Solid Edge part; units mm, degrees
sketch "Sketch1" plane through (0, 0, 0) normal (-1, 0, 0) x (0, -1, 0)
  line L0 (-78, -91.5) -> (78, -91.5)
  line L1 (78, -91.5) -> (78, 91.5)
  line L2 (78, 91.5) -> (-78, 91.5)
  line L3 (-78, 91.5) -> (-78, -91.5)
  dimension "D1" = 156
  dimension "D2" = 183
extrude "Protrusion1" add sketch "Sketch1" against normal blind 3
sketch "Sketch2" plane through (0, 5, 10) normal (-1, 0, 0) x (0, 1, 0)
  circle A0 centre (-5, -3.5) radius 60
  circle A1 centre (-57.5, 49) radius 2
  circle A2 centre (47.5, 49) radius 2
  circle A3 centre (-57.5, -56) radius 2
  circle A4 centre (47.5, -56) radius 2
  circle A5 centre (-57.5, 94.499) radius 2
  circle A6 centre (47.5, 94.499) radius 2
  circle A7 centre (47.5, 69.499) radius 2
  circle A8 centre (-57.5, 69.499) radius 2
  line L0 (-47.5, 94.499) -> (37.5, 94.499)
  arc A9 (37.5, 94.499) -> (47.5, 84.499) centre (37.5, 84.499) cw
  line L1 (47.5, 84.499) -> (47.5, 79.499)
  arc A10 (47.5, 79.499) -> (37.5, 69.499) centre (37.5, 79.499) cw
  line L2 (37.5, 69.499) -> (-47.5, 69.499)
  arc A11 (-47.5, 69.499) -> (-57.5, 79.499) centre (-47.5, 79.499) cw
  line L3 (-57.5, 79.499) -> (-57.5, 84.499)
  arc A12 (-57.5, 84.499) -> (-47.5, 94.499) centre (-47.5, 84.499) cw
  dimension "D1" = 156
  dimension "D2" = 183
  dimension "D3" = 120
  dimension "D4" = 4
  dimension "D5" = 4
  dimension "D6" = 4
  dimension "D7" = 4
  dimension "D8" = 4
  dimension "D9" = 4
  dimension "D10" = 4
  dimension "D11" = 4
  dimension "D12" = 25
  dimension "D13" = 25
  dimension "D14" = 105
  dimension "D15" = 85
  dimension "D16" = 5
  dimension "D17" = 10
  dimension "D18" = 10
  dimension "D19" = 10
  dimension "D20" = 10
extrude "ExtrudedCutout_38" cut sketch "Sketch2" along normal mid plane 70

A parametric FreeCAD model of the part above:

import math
import FreeCAD as App
import Part
import Sketcher

V = App.Vector

doc = App.newDocument("Part")
body = doc.addObject("PartDesign::Body", "Body")

sketch1 = body.newObject("Sketcher::SketchObject", "Sketch")
sketch1.AttachmentSupport = (doc.getObject("YZ_Plane"), [""])
sketch1.MapMode = "FlatFace"
sketch1.addGeometry([
    Part.LineSegment(V(78, 92, 0), V(78, -92, 0)),
    Part.LineSegment(V(78, -92, 0), V(-78, -92, 0)),
    Part.LineSegment(V(-78, -92, 0), V(-78, 92, 0)),
    Part.LineSegment(V(-78, 92, 0), V(78, 92, 0)),
], False)
sketch1.addConstraint([
    Sketcher.Constraint("Coincident", 0, 2, 1, 1),
    Sketcher.Constraint("Coincident", 1, 2, 2, 1),
    Sketcher.Constraint("Coincident", 2, 2, 3, 1),
    Sketcher.Constraint("Coincident", 3, 2, 0, 1),
    Sketcher.Constraint("Vertical", 0),
    Sketcher.Constraint("Horizontal", 1),
    Sketcher.Constraint("Vertical", 2),
    Sketcher.Constraint("Horizontal", 3),
    Sketcher.Constraint("Symmetric", 0, 2, 2, 2, -1, 1),
    Sketcher.Constraint("DistanceX", 1, 2, 1, 1, 156.0),
    Sketcher.Constraint("DistanceY", 0, 2, 0, 1, 183.0),
])
pad1 = body.newObject("PartDesign::Pad", "Pad")
pad1.Profile = sketch1
pad1.Length = 3

sketch2 = body.newObject("Sketcher::SketchObject", "Sketch001")
sketch2.AttachmentSupport = (doc.getObject("YZ_Plane"), [""])
sketch2.MapMode = "FlatFace"
sketch2.addGeometry([
    Part.Circle(V(0, 13.5, 0), V(0, 0, 1), 60),
    Part.Circle(V(-52.5, -39, 0), V(0, 0, 1), 2),
    Part.Circle(V(52.5, -39, 0), V(0, 0, 1), 2),
    Part.Circle(V(-52.5, 66, 0), V(0, 0, 1), 2),
    Part.Circle(V(52.5, 66, 0), V(0, 0, 1), 2),
    Part.Circle(V(-52.5, -84.5, 0), V(0, 0, 1), 2),
    Part.Circle(V(52.5, -84.5, 0), V(0, 0, 1), 2),
    Part.Circle(V(52.5, -59.5, 0), V(0, 0, 1), 2),
    Part.Circle(V(-52.5, -59.5, 0), V(0, 0, 1), 2),
    Part.LineSegment(V(42.5, -84.5, 0), V(-42.5, -84.5, 0)),
    Part.ArcOfCircle(Part.Circle(V(-42.5, -74.5, 0), V(0, 0, 1), 10), math.radians(180), math.radians(270)),
    Part.LineSegment(V(-52.5, -74.5, 0), V(-52.5, -69.5, 0)),
    Part.ArcOfCircle(Part.Circle(V(-42.5, -69.5, 0), V(0, 0, 1), 10), math.radians(90), math.radians(180)),
    Part.LineSegment(V(-42.5, -59.5, 0), V(42.5, -59.5, 0)),
    Part.ArcOfCircle(Part.Circle(V(42.5, -69.5, 0), V(0, 0, 1), 10), math.radians(0), math.radians(90)),
    Part.LineSegment(V(52.5, -69.5, 0), V(52.5, -74.5, 0)),
    Part.ArcOfCircle(Part.Circle(V(42.5, -74.5, 0), V(0, 0, 1), 10), math.radians(-90), math.radians(0)),
], False)
sketch2.addConstraint([
    Sketcher.Constraint("Tangent", 9, 2, 10, 2),
    Sketcher.Constraint("Tangent", 10, 1, 11, 1),
    Sketcher.Constraint("Tangent", 11, 2, 12, 2),
    Sketcher.Constraint("Tangent", 12, 1, 13, 1),
    Sketcher.Constraint("Tangent", 13, 2, 14, 2),
    Sketcher.Constraint("Tangent", 14, 1, 15, 1),
    Sketcher.Constraint("Tangent", 15, 2, 16, 2),
    Sketcher.Constraint("Tangent", 16, 1, 9, 1),
    Sketcher.Constraint("Horizontal", 9),
    Sketcher.Constraint("Vertical", 11),
    Sketcher.Constraint("Horizontal", 13),
    Sketcher.Constraint("Vertical", 15),
    Sketcher.Constraint("Equal", 1, 2),
    Sketcher.Constraint("Equal", 2, 3),
    Sketcher.Constraint("Equal", 3, 4),
    Sketcher.Constraint("Equal", 4, 5),
    Sketcher.Constraint("Equal", 5, 6),
    Sketcher.Constraint("Equal", 6, 7),
    Sketcher.Constraint("Equal", 7, 8),
    Sketcher.Constraint("Equal", 10, 12),
    Sketcher.Constraint("Equal", 12, 14),
    Sketcher.Constraint("Equal", 14, 16),
    Sketcher.Constraint("Symmetric", 1, 3, 2, 3, -2),
    Sketcher.Constraint("Symmetric", 3, 3, 4, 3, -2),
    Sketcher.Constraint("Symmetric", 5, 3, 6, 3, -2),
    Sketcher.Constraint("Symmetric", 7, 3, 8, 3, -2),
    Sketcher.Constraint("PointOnObject", 0, 3, -2),
    Sketcher.Constraint("Horizontal", 6, 3, 9, 2),
    Sketcher.Constraint("Horizontal", 8, 3, 12, 1),
    Sketcher.Constraint("Vertical", 1, 3, 3, 3),
    Sketcher.Constraint("Vertical", 3, 3, 5, 3),
    Sketcher.Constraint("Vertical", 6, 3, 7, 3),
    Sketcher.Constraint("Vertical", 8, 3, 10, 1),
    Sketcher.Constraint("Vertical", 7, 3, 14, 1),
    Sketcher.Constraint("Diameter", 0, 120.0),
    Sketcher.Constraint("Diameter", 1, 4.0),
    Sketcher.Constraint("Radius", 10, 10.0),
    Sketcher.Constraint("DistanceX", 9, 2, 9, 1, 85.0),
    Sketcher.Constraint("DistanceY", 11, 1, 11, 2, 5.0),
    Sketcher.Constraint("DistanceY", 1, 3, -1, 1, 39.0),
    Sketcher.Constraint("DistanceY", -1, 1, 3, 3, 66.0),
    Sketcher.Constraint("DistanceY", -1, 1, 0, 3, 13.5),
    Sketcher.Constraint("DistanceY", 5, 3, -1, 1, 84.499),
])
pocket1 = body.newObject("PartDesign::Pocket", "Pocket")
pocket1.Profile = sketch2
pocket1.Length = 70
pocket1.Midplane = True

doc.recompute()
